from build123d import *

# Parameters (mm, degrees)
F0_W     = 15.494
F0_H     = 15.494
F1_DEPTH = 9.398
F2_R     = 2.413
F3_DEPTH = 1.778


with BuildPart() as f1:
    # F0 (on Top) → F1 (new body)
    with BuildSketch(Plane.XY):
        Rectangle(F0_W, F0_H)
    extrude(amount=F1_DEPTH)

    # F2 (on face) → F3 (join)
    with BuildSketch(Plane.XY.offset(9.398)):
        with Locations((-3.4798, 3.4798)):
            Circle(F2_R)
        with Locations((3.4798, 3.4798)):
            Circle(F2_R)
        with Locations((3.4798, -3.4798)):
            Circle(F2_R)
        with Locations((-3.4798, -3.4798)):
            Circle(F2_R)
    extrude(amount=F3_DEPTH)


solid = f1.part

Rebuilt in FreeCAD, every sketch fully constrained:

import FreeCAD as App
import Part
import Sketcher
from FreeCAD import Vector
Q = App.Units.Quantity

doc = App.newDocument("Part")
body = doc.addObject("PartDesign::Body", "Body")

sketch1 = doc.addObject("Sketcher::SketchObject", "Sketch")
body.addObject(sketch1)
sketch1.AttachmentSupport = (doc.XY_Plane, [""])
sketch1.MapMode = "FlatFace"
sketch1.addGeometry(Part.LineSegment(Vector(-8, 8, 0), Vector(-8, -8, 0)), False)
sketch1.addGeometry(Part.LineSegment(Vector(-8, -8, 0), Vector(8, -8, 0)), False)
sketch1.addGeometry(Part.LineSegment(Vector(8, -8, 0), Vector(8, 8, 0)), False)
sketch1.addGeometry(Part.LineSegment(Vector(8, 8, 0), Vector(-8, 8, 0)), False)
sketch1.addConstraint(Sketcher.Constraint("Coincident", 0, 2, 1, 1))
sketch1.addConstraint(Sketcher.Constraint("Coincident", 1, 2, 2, 1))
sketch1.addConstraint(Sketcher.Constraint("Coincident", 2, 2, 3, 1))
sketch1.addConstraint(Sketcher.Constraint("Coincident", 3, 2, 0, 1))
sketch1.addConstraint(Sketcher.Constraint("Vertical", 0))
sketch1.addConstraint(Sketcher.Constraint("Horizontal", 1))
sketch1.addConstraint(Sketcher.Constraint("Vertical", 2))
sketch1.addConstraint(Sketcher.Constraint("Horizontal", 3))
sketch1.addConstraint(Sketcher.Constraint("Symmetric", 0, 2, 2, 2, -1, 1))
sketch1.addConstraint(Sketcher.Constraint("Equal", 3, 0))
sketch1.addConstraint(Sketcher.Constraint("DistanceX", 1, 1, 1, 2, Q("0.61 in")))
pad1 = doc.addObject("PartDesign::Pad", "Pad")
body.addObject(pad1)
pad1.Profile = sketch1
pad1.Length = Q("0.37 in")

sketch2 = doc.addObject("Sketcher::SketchObject", "Sketch001")
body.addObject(sketch2)
sketch2.AttachmentSupport = (doc.XY_Plane, [""])
sketch2.MapMode = "FlatFace"
sketch2.AttachmentOffset = App.Placement(Vector(0, 0, 0.37 * 25.4), App.Rotation())
sketch2.addGeometry(Part.Circle(Vector(-3.5, 3.5, 0), Vector(0, 0, 1), 2.4), False)
sketch2.addGeometry(Part.Circle(Vector(3.5, 3.5, 0), Vector(0, 0, 1), 2.4), False)
sketch2.addGeometry(Part.Circle(Vector(3.5, -3.5, 0), Vector(0, 0, 1), 2.4), False)
sketch2.addGeometry(Part.Circle(Vector(-3.5, -3.5, 0), Vector(0, 0, 1), 2.4), False)
sketch2.addConstraint(Sketcher.Constraint("Equal", 0, 1))
sketch2.addConstraint(Sketcher.Constraint("Equal", 1, 2))
sketch2.addConstraint(Sketcher.Constraint("Equal", 2, 3))
sketch2.addConstraint(Sketcher.Constraint("Symmetric", 0, 3, 2, 3, -1, 1))
sketch2.addConstraint(Sketcher.Constraint("Symmetric", 1, 3, 3, 3, -1, 1))
sketch2.addConstraint(Sketcher.Constraint("Symmetric", 0, 3, 1, 3, -2))
sketch2.addConstraint(Sketcher.Constraint("Diameter", 0, Q("0.19 in")))
sketch2.addConstraint(Sketcher.Constraint("DistanceX", 0, 3, -1, 1, Q("0.137 in")))
sketch2.addConstraint(Sketcher.Constraint("DistanceY", -1, 1, 0, 3, Q("0.137 in")))
pad2 = doc.addObject("PartDesign::Pad", "Pad001")
body.addObject(pad2)
pad2.Profile = sketch2
pad2.Length = Q("0.07 in")

doc.recompute()
